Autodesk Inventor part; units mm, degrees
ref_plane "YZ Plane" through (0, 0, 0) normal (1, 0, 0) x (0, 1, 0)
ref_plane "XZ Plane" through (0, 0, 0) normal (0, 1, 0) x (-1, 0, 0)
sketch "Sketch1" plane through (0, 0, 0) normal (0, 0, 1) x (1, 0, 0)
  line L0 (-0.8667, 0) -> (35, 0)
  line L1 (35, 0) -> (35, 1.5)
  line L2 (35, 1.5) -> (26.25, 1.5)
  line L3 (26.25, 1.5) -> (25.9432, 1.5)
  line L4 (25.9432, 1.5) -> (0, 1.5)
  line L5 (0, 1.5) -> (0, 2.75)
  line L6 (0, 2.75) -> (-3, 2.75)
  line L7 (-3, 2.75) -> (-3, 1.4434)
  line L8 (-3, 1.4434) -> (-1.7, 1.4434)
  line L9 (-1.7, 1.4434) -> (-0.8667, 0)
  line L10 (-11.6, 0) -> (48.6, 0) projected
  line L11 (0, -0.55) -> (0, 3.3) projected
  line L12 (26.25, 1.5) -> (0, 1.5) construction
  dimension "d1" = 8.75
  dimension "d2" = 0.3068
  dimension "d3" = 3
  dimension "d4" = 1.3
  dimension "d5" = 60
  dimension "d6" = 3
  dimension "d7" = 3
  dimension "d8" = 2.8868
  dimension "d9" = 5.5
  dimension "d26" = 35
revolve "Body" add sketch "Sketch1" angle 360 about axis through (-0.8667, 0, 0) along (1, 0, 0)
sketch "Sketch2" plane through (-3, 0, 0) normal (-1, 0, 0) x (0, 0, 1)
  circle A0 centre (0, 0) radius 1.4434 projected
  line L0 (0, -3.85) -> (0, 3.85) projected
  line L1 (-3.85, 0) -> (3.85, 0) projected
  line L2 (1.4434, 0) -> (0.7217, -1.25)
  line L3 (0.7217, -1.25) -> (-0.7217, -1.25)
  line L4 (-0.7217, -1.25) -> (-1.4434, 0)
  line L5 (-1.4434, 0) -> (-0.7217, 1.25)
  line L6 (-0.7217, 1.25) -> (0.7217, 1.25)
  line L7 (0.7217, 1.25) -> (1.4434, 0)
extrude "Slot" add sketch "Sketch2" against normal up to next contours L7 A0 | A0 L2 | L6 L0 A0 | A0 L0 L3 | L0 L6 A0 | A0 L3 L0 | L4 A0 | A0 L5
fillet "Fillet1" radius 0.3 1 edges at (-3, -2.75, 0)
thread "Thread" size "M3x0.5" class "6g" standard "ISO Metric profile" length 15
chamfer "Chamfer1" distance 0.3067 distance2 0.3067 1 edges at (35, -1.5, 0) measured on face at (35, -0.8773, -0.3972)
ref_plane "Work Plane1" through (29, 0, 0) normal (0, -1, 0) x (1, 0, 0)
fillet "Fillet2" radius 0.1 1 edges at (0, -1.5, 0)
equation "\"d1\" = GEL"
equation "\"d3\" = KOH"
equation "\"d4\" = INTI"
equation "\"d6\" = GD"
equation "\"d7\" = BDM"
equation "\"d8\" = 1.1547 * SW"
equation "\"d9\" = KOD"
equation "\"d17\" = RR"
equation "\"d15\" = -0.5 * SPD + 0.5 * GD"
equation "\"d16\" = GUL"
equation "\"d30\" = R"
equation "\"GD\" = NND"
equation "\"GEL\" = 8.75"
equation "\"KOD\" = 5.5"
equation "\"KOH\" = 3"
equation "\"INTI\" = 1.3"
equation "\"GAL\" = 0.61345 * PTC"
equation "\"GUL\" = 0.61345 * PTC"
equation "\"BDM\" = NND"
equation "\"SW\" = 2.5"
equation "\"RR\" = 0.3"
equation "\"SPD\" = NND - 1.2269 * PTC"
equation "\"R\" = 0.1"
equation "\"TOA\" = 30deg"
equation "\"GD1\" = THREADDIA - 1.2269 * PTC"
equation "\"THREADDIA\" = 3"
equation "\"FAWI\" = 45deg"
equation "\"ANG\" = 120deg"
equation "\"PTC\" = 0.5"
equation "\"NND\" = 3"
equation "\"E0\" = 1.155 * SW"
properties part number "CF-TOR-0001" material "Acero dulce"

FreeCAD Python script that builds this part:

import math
import FreeCAD as App
import Part
import Sketcher

V = App.Vector
Q = App.Units.Quantity


def edges_at(feature, points):
    """Names of the edges that pass closest to the given points."""
    edges = feature.Shape.Edges
    near = lambda p: min(range(len(edges)), key=lambda i: edges[i].distToShape(Part.Vertex(*p))[0])
    return sorted({f"Edge{near(p) + 1}" for p in points})

doc = App.newDocument("Part")
params = doc.addObject("Spreadsheet::Sheet", "Params")
for row, (alias, value) in enumerate([
    ("sketch1_width", "35 mm"),
    ("sketch1_width2", "3 mm"),
    ("sketch1_width3", "1.3 mm"),
    ("sketch1_height", "1.5 mm"),
    ("sketch1_height2", "1.25 mm"),
    ("revolution_angle", "360 deg"),
    ("fillet_radius", "0.3 mm"),
    ("chamfer_size", "0.3067 mm"),
    ("chamfer_size2", "0.3067 mm"),
    ("fillet2_radius", "0.1 mm"),
], start=1):
    params.set(f"A{row}", alias)
    params.set(f"B{row}", "=" + value)
    params.setAlias(f"B{row}", alias)

body = doc.addObject("PartDesign::Body", "Body")

# Sketch on XY plane
sketch1 = body.newObject("Sketcher::SketchObject", "Sketch")
sketch1.AttachmentSupport = (doc.getObject("XY_Plane"), [""])
sketch1.MapMode = "FlatFace"
sketch1.addGeometry(Part.LineSegment(V(-1.7, 1.4, 0), V(-0.9, 0, 0)), False)
sketch1.addGeometry(Part.LineSegment(V(-0.9, 0, 0), V(35, 0, 0)), False)
sketch1.addGeometry(Part.LineSegment(V(35, 0, 0), V(35, 1.5, 0)), False)
sketch1.addGeometry(Part.LineSegment(V(35, 1.5, 0), V(0, 1.5, 0)), False)
sketch1.addGeometry(Part.LineSegment(V(0, 1.5, 0), V(0, 2.8, 0)), False)
sketch1.addGeometry(Part.LineSegment(V(0, 2.8, 0), V(-3, 2.8, 0)), False)
sketch1.addGeometry(Part.LineSegment(V(-3, 2.8, 0), V(-3, 1.4, 0)), False)
sketch1.addGeometry(Part.LineSegment(V(-3, 1.4, 0), V(-1.7, 1.4, 0)), False)
sketch1.addConstraint(Sketcher.Constraint("Coincident", 0, 2, 1, 1))
sketch1.addConstraint(Sketcher.Constraint("Coincident", 1, 2, 2, 1))
sketch1.addConstraint(Sketcher.Constraint("Coincident", 2, 2, 3, 1))
sketch1.addConstraint(Sketcher.Constraint("Coincident", 3, 2, 4, 1))
sketch1.addConstraint(Sketcher.Constraint("Coincident", 4, 2, 5, 1))
sketch1.addConstraint(Sketcher.Constraint("Coincident", 5, 2, 6, 1))
sketch1.addConstraint(Sketcher.Constraint("Coincident", 6, 2, 7, 1))
sketch1.addConstraint(Sketcher.Constraint("Coincident", 7, 2, 0, 1))
sketch1.addConstraint(Sketcher.Constraint("Horizontal", 1))
sketch1.addConstraint(Sketcher.Constraint("Vertical", 2))
sketch1.addConstraint(Sketcher.Constraint("Horizontal", 3))
sketch1.addConstraint(Sketcher.Constraint("Vertical", 4))
sketch1.addConstraint(Sketcher.Constraint("Horizontal", 5))
sketch1.addConstraint(Sketcher.Constraint("Vertical", 6))
sketch1.addConstraint(Sketcher.Constraint("Horizontal", 7))
sketch1.addConstraint(Sketcher.Constraint("PointOnObject", 0, 2, -1))
sketch1.addConstraint(Sketcher.Constraint("PointOnObject", 3, 2, -2))
sketch1.addConstraint(Sketcher.Constraint("DistanceX", 3, 2, 3, 1, Q("35 mm")))
sketch1.addConstraint(Sketcher.Constraint("DistanceX", 5, 2, 5, 1, Q("3 mm")))
sketch1.addConstraint(Sketcher.Constraint("DistanceX", 7, 1, 7, 2, Q("1.3 mm")))
sketch1.addConstraint(Sketcher.Constraint("DistanceY", 2, 1, 2, 2, Q("1.5 mm")))
sketch1.addConstraint(Sketcher.Constraint("DistanceY", 4, 1, 4, 2, Q("1.25 mm")))
sketch1.addConstraint(Sketcher.Constraint("DistanceX", 1, 1, 1, 2, Q("35.8667 mm")))
sketch1.addConstraint(Sketcher.Constraint("DistanceY", 6, 2, 6, 1, Q("1.3066 mm")))
sketch1.setExpression("Constraints[17]", "Params.sketch1_width")
sketch1.setExpression("Constraints[18]", "Params.sketch1_width2")
sketch1.setExpression("Constraints[19]", "Params.sketch1_width3")
sketch1.setExpression("Constraints[20]", "Params.sketch1_height")
sketch1.setExpression("Constraints[21]", "Params.sketch1_height2")
revolution = body.newObject("PartDesign::Revolution", "Revolution")
revolution.Profile = sketch1
revolution.ReferenceAxis = (sketch1, ["H_Axis"])
revolution.setExpression("Angle", "Params.revolution_angle")

# Sketch on YZ plane
sketch2 = body.newObject("Sketcher::SketchObject", "Sketch001")
sketch2.AttachmentSupport = (doc.getObject("YZ_Plane"), [""])
sketch2.MapMode = "FlatFace"
sketch2.AttachmentOffset = App.Placement(V(0, 0, -3), App.Rotation())
sketch2.addGeometry(Part.LineSegment(V(1.2, 0.7, 0), V(0, 1.4, 0)), False)
sketch2.addGeometry(Part.ArcOfCircle(Part.Circle(V(0, 0, 0), V(0, 0, 1), 1.4), math.radians(30), math.radians(90)), False)
sketch2.addGeometry(Part.ArcOfCircle(Part.Circle(V(0, 0, 0), V(0, 0, 1), 1.4), math.radians(90), math.radians(150)), False)
sketch2.addGeometry(Part.LineSegment(V(0, 1.4, 0), V(-1.2, 0.7, 0)), False)
sketch2.addGeometry(Part.ArcOfCircle(Part.Circle(V(0, 0, 0), V(0, 0, 1), 1.4), math.radians(-30), math.radians(30)), False)
sketch2.addGeometry(Part.LineSegment(V(1.2, 0.7, 0), V(1.2, -0.7, 0)), False)
sketch2.addGeometry(Part.LineSegment(V(-1.2, 0.7, 0), V(-1.2, -0.7, 0)), False)
sketch2.addGeometry(Part.ArcOfCircle(Part.Circle(V(0, 0, 0), V(0, 0, 1), 1.4), math.radians(150), math.radians(210)), False)
sketch2.addGeometry(Part.LineSegment(V(-1.2, -0.7, 0), V(0, -1.4, 0)), False)
sketch2.addGeometry(Part.ArcOfCircle(Part.Circle(V(0, 0, 0), V(0, 0, 1), 1.4), math.radians(-150), math.radians(-90)), False)
sketch2.addGeometry(Part.ArcOfCircle(Part.Circle(V(0, 0, 0), V(0, 0, 1), 1.4), math.radians(-90), math.radians(-30)), False)
sketch2.addGeometry(Part.LineSegment(V(0, -1.4, 0), V(1.2, -0.7, 0)), False)
sketch2.addConstraint(Sketcher.Constraint("Coincident", 0, 1, 1, 1))
sketch2.addConstraint(Sketcher.Constraint("Coincident", 1, 2, 0, 2))
sketch2.addConstraint(Sketcher.Constraint("Coincident", 2, 1, 3, 1))
sketch2.addConstraint(Sketcher.Constraint("Coincident", 3, 2, 2, 2))
sketch2.addConstraint(Sketcher.Constraint("Coincident", 4, 1, 5, 2))
sketch2.addConstraint(Sketcher.Constraint("Coincident", 5, 1, 4, 2))
sketch2.addConstraint(Sketcher.Constraint("Coincident", 6, 1, 7, 1))
sketch2.addConstraint(Sketcher.Constraint("Coincident", 7, 2, 6, 2))
sketch2.addConstraint(Sketcher.Constraint("Coincident", 8, 1, 9, 1))
sketch2.addConstraint(Sketcher.Constraint("Coincident", 9, 2, 8, 2))
sketch2.addConstraint(Sketcher.Constraint("Coincident", 10, 1, 11, 1))
sketch2.addConstraint(Sketcher.Constraint("Coincident", 11, 2, 10, 2))
sketch2.addConstraint(Sketcher.Constraint("Vertical", 5))
sketch2.addConstraint(Sketcher.Constraint("Vertical", 6))
sketch2.addConstraint(Sketcher.Constraint("Coincident", 1, 3, -1, 1))
sketch2.addConstraint(Sketcher.Constraint("Coincident", 2, 3, -1, 1))
sketch2.addConstraint(Sketcher.Constraint("Coincident", 4, 3, -1, 1))
sketch2.addConstraint(Sketcher.Constraint("Coincident", 7, 3, -1, 1))
sketch2.addConstraint(Sketcher.Constraint("Coincident", 9, 3, -1, 1))
sketch2.addConstraint(Sketcher.Constraint("Coincident", 10, 3, -1, 1))
sketch2.addConstraint(Sketcher.Constraint("Coincident", 2, 1, 1, 2))
sketch2.addConstraint(Sketcher.Constraint("Coincident", 5, 1, 0, 1))
sketch2.addConstraint(Sketcher.Constraint("Coincident", 6, 1, 3, 2))
sketch2.addConstraint(Sketcher.Constraint("Coincident", 8, 1, 7, 2))
sketch2.addConstraint(Sketcher.Constraint("Coincident", 10, 1, 9, 2))
sketch2.addConstraint(Sketcher.Constraint("PointOnObject", 1, 2, -2))
sketch2.addConstraint(Sketcher.Constraint("PointOnObject", 9, 2, -2))
sketch2.addConstraint(Sketcher.Constraint("Parallel", 0, 8))
sketch2.addConstraint(Sketcher.Constraint("Parallel", 3, 11))
sketch2.addConstraint(Sketcher.Constraint("Angle", 0, Q("149.9996 deg")))
sketch2.addConstraint(Sketcher.Constraint("Radius", 1, Q("1.4434 mm")))
pad1 = body.newObject("PartDesign::Pad", "Pad")
pad1.Profile = sketch2
pad1.Type = "UpToFirst"
doc.recompute()

fillet = body.newObject("PartDesign::Fillet", "Fillet")
fillet.Base = (pad1, edges_at(pad1, [(-3, -2.75, 0)]))
fillet.setExpression("Radius", "Params.fillet_radius")
doc.recompute()

chamfer = body.newObject("PartDesign::Chamfer", "Chamfer")
chamfer.Base = (fillet, edges_at(fillet, [(35, -1.5, 0)]))
chamfer.ChamferType = "Two distances"
chamfer.setExpression("Size", "Params.chamfer_size")
chamfer.setExpression("Size2", "Params.chamfer_size2")
doc.recompute()

fillet2 = body.newObject("PartDesign::Fillet", "Fillet001")
fillet2.Base = (chamfer, edges_at(chamfer, [(0, -1.5, 0)]))
fillet2.setExpression("Radius", "Params.fillet2_radius")

doc.recompute()
